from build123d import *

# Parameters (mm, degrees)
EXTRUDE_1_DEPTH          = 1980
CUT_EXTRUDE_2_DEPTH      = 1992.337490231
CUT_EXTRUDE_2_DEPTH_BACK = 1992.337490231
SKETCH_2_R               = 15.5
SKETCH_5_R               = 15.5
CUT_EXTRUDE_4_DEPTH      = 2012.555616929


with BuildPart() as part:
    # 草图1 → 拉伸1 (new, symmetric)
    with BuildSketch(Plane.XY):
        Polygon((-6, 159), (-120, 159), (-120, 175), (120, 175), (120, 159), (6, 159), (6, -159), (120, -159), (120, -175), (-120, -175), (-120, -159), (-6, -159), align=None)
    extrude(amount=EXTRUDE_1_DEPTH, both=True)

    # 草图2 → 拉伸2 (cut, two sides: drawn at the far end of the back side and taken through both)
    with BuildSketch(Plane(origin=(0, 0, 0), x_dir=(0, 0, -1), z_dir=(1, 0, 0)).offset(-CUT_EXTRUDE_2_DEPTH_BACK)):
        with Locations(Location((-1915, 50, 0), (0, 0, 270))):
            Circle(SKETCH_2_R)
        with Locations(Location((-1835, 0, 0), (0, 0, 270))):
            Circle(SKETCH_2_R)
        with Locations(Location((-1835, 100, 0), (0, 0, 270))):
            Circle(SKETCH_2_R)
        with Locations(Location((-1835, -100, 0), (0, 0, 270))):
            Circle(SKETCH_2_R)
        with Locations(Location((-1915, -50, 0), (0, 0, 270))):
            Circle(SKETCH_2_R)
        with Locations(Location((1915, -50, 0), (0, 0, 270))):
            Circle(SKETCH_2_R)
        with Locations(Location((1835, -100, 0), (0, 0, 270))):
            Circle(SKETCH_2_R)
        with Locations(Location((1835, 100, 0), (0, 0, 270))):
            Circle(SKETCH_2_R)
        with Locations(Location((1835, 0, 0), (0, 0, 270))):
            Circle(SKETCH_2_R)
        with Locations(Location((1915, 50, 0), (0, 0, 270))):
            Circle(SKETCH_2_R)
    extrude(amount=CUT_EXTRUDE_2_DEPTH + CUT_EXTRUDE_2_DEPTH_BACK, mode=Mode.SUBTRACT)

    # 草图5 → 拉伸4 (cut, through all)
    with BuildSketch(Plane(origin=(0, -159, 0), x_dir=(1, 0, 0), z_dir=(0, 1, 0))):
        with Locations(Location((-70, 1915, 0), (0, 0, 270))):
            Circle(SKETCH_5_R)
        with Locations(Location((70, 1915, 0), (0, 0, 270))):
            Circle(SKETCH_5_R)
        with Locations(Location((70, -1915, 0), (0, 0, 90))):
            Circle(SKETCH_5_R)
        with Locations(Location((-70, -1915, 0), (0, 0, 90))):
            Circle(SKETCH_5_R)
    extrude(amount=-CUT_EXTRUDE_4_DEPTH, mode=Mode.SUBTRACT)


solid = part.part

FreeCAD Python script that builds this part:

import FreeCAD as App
import Part
import Sketcher

doc = App.newDocument("Part")
body = doc.addObject("PartDesign::Body", "Body")

sketch1 = body.newObject("Sketcher::SketchObject", "Sketch")
sketch1.AttachmentSupport = (doc.getObject("XY_Plane"), [""])
sketch1.MapMode = "FlatFace"
sketch1.addGeometry([
    Part.LineSegment(App.Vector(-120, 159, 0), App.Vector(-6, 159, 0)),
    Part.LineSegment(App.Vector(-6, 159, 0), App.Vector(-6, -159, 0)),
    Part.LineSegment(App.Vector(-6, -159, 0), App.Vector(-120, -159, 0)),
    Part.LineSegment(App.Vector(-120, -159, 0), App.Vector(-120, -175, 0)),
    Part.LineSegment(App.Vector(-120, -175, 0), App.Vector(120, -175, 0)),
    Part.LineSegment(App.Vector(120, -175, 0), App.Vector(120, -159, 0)),
    Part.LineSegment(App.Vector(120, -159, 0), App.Vector(6, -159, 0)),
    Part.LineSegment(App.Vector(6, -159, 0), App.Vector(6, 159, 0)),
    Part.LineSegment(App.Vector(6, 159, 0), App.Vector(120, 159, 0)),
    Part.LineSegment(App.Vector(120, 159, 0), App.Vector(120, 175, 0)),
    Part.LineSegment(App.Vector(120, 175, 0), App.Vector(-120, 175, 0)),
    Part.LineSegment(App.Vector(-120, 175, 0), App.Vector(-120, 159, 0)),
], False)
sketch1.addConstraint([
    Sketcher.Constraint("Coincident", 0, 2, 1, 1),
    Sketcher.Constraint("Coincident", 1, 2, 2, 1),
    Sketcher.Constraint("Coincident", 2, 2, 3, 1),
    Sketcher.Constraint("Coincident", 3, 2, 4, 1),
    Sketcher.Constraint("Coincident", 4, 2, 5, 1),
    Sketcher.Constraint("Coincident", 5, 2, 6, 1),
    Sketcher.Constraint("Coincident", 6, 2, 7, 1),
    Sketcher.Constraint("Coincident", 7, 2, 8, 1),
    Sketcher.Constraint("Coincident", 8, 2, 9, 1),
    Sketcher.Constraint("Coincident", 9, 2, 10, 1),
    Sketcher.Constraint("Coincident", 10, 2, 11, 1),
    Sketcher.Constraint("Coincident", 11, 2, 0, 1),
    Sketcher.Constraint("Horizontal", 0),
    Sketcher.Constraint("Vertical", 1),
    Sketcher.Constraint("Horizontal", 2),
    Sketcher.Constraint("Vertical", 3),
    Sketcher.Constraint("Horizontal", 4),
    Sketcher.Constraint("Vertical", 5),
    Sketcher.Constraint("Horizontal", 6),
    Sketcher.Constraint("Vertical", 7),
    Sketcher.Constraint("Horizontal", 8),
    Sketcher.Constraint("Vertical", 9),
    Sketcher.Constraint("Horizontal", 10),
    Sketcher.Constraint("Vertical", 11),
    Sketcher.Constraint("Symmetric", 0, 2, 6, 2, -1, 1),
    Sketcher.Constraint("Symmetric", 2, 2, 8, 2, -1, 1),
    Sketcher.Constraint("Symmetric", 4, 2, 10, 2, -1, 1),
    Sketcher.Constraint("Symmetric", 2, 2, 5, 2, -2),
    Sketcher.Constraint("DistanceX", 0, 1, 0, 2, 114.0),
    Sketcher.Constraint("DistanceX", 4, 1, 4, 2, 240.0),
    Sketcher.Constraint("DistanceY", 1, 2, 1, 1, 318.0),
    Sketcher.Constraint("DistanceY", 3, 2, 3, 1, 16.0),
])
pad1 = body.newObject("PartDesign::Pad", "Pad")
pad1.Profile = sketch1
pad1.Length = 3960
pad1.Midplane = True

sketch2 = body.newObject("Sketcher::SketchObject", "Sketch001")
sketch2.AttachmentSupport = (doc.getObject("YZ_Plane"), [""])
sketch2.MapMode = "FlatFace"
sketch2.addGeometry([
    Part.Circle(App.Vector(50, 1915, 0), App.Vector(0, 0, 1), 15.5),
    Part.Circle(App.Vector(0, 1835, 0), App.Vector(0, 0, 1), 15.5),
    Part.Circle(App.Vector(100, 1835, 0), App.Vector(0, 0, 1), 15.5),
    Part.Circle(App.Vector(-100, 1835, 0), App.Vector(0, 0, 1), 15.5),
    Part.Circle(App.Vector(-50, 1915, 0), App.Vector(0, 0, 1), 15.5),
    Part.Circle(App.Vector(-50, -1915, 0), App.Vector(0, 0, 1), 15.5),
    Part.Circle(App.Vector(-100, -1835, 0), App.Vector(0, 0, 1), 15.5),
    Part.Circle(App.Vector(100, -1835, 0), App.Vector(0, 0, 1), 15.5),
    Part.Circle(App.Vector(0, -1835, 0), App.Vector(0, 0, 1), 15.5),
    Part.Circle(App.Vector(50, -1915, 0), App.Vector(0, 0, 1), 15.5),
], False)
sketch2.addConstraint([
    Sketcher.Constraint("Equal", 0, 1),
    Sketcher.Constraint("Equal", 1, 2),
    Sketcher.Constraint("Equal", 2, 3),
    Sketcher.Constraint("Equal", 3, 4),
    Sketcher.Constraint("Equal", 4, 5),
    Sketcher.Constraint("Equal", 5, 6),
    Sketcher.Constraint("Equal", 6, 7),
    Sketcher.Constraint("Equal", 7, 8),
    Sketcher.Constraint("Equal", 8, 9),
    Sketcher.Constraint("Symmetric", 0, 3, 5, 3, -1, 1),
    Sketcher.Constraint("Symmetric", 2, 3, 6, 3, -1, 1),
    Sketcher.Constraint("Symmetric", 3, 3, 7, 3, -1, 1),
    Sketcher.Constraint("Symmetric", 1, 3, 8, 3, -1, 1),
    Sketcher.Constraint("Symmetric", 4, 3, 9, 3, -1, 1),
    Sketcher.Constraint("Symmetric", 2, 3, 3, 3, -2),
    Sketcher.Constraint("Symmetric", 0, 3, 4, 3, -2),
    Sketcher.Constraint("PointOnObject", 1, 3, -2),
    Sketcher.Constraint("Horizontal", 1, 3, 2, 3),
    Sketcher.Constraint("Diameter", 0, 31.0),
    Sketcher.Constraint("DistanceX", -1, 1, 0, 3, 50.0),
    Sketcher.Constraint("DistanceY", -1, 1, 0, 3, 1915.0),
    Sketcher.Constraint("DistanceY", -1, 1, 1, 3, 1835.0),
    Sketcher.Constraint("DistanceX", -1, 1, 2, 3, 100.0),
])
pocket1 = body.newObject("PartDesign::Pocket", "Pocket")
pocket1.Profile = sketch2
pocket1.Type = "ThroughAll"
pocket1.Midplane = True

sketch3 = body.newObject("Sketcher::SketchObject", "Sketch002")
sketch3.AttachmentSupport = (doc.getObject("XZ_Plane"), [""])
sketch3.MapMode = "FlatFace"
sketch3.AttachmentOffset = App.Placement(App.Vector(0, 0, 159), App.Rotation())
sketch3.addGeometry([
    Part.Circle(App.Vector(-70, -1915, 0), App.Vector(0, 0, 1), 15.5),
    Part.Circle(App.Vector(70, -1915, 0), App.Vector(0, 0, 1), 15.5),
    Part.Circle(App.Vector(70, 1915, 0), App.Vector(0, 0, 1), 15.5),
    Part.Circle(App.Vector(-70, 1915, 0), App.Vector(0, 0, 1), 15.5),
], False)
sketch3.addConstraint([
    Sketcher.Constraint("Equal", 0, 1),
    Sketcher.Constraint("Equal", 1, 2),
    Sketcher.Constraint("Equal", 2, 3),
    Sketcher.Constraint("Symmetric", 0, 3, 2, 3, -1, 1),
    Sketcher.Constraint("Symmetric", 1, 3, 3, 3, -1, 1),
    Sketcher.Constraint("Symmetric", 0, 3, 1, 3, -2),
    Sketcher.Constraint("Diameter", 0, 31.0),
    Sketcher.Constraint("DistanceX", 0, 3, -1, 1, 70.0),
    Sketcher.Constraint("DistanceY", 0, 3, -1, 1, 1915.0),
])
pocket2 = body.newObject("PartDesign::Pocket", "Pocket001")
pocket2.Profile = sketch3
pocket2.Type = "ThroughAll"
pocket2.Reversed = True

doc.recompute()
